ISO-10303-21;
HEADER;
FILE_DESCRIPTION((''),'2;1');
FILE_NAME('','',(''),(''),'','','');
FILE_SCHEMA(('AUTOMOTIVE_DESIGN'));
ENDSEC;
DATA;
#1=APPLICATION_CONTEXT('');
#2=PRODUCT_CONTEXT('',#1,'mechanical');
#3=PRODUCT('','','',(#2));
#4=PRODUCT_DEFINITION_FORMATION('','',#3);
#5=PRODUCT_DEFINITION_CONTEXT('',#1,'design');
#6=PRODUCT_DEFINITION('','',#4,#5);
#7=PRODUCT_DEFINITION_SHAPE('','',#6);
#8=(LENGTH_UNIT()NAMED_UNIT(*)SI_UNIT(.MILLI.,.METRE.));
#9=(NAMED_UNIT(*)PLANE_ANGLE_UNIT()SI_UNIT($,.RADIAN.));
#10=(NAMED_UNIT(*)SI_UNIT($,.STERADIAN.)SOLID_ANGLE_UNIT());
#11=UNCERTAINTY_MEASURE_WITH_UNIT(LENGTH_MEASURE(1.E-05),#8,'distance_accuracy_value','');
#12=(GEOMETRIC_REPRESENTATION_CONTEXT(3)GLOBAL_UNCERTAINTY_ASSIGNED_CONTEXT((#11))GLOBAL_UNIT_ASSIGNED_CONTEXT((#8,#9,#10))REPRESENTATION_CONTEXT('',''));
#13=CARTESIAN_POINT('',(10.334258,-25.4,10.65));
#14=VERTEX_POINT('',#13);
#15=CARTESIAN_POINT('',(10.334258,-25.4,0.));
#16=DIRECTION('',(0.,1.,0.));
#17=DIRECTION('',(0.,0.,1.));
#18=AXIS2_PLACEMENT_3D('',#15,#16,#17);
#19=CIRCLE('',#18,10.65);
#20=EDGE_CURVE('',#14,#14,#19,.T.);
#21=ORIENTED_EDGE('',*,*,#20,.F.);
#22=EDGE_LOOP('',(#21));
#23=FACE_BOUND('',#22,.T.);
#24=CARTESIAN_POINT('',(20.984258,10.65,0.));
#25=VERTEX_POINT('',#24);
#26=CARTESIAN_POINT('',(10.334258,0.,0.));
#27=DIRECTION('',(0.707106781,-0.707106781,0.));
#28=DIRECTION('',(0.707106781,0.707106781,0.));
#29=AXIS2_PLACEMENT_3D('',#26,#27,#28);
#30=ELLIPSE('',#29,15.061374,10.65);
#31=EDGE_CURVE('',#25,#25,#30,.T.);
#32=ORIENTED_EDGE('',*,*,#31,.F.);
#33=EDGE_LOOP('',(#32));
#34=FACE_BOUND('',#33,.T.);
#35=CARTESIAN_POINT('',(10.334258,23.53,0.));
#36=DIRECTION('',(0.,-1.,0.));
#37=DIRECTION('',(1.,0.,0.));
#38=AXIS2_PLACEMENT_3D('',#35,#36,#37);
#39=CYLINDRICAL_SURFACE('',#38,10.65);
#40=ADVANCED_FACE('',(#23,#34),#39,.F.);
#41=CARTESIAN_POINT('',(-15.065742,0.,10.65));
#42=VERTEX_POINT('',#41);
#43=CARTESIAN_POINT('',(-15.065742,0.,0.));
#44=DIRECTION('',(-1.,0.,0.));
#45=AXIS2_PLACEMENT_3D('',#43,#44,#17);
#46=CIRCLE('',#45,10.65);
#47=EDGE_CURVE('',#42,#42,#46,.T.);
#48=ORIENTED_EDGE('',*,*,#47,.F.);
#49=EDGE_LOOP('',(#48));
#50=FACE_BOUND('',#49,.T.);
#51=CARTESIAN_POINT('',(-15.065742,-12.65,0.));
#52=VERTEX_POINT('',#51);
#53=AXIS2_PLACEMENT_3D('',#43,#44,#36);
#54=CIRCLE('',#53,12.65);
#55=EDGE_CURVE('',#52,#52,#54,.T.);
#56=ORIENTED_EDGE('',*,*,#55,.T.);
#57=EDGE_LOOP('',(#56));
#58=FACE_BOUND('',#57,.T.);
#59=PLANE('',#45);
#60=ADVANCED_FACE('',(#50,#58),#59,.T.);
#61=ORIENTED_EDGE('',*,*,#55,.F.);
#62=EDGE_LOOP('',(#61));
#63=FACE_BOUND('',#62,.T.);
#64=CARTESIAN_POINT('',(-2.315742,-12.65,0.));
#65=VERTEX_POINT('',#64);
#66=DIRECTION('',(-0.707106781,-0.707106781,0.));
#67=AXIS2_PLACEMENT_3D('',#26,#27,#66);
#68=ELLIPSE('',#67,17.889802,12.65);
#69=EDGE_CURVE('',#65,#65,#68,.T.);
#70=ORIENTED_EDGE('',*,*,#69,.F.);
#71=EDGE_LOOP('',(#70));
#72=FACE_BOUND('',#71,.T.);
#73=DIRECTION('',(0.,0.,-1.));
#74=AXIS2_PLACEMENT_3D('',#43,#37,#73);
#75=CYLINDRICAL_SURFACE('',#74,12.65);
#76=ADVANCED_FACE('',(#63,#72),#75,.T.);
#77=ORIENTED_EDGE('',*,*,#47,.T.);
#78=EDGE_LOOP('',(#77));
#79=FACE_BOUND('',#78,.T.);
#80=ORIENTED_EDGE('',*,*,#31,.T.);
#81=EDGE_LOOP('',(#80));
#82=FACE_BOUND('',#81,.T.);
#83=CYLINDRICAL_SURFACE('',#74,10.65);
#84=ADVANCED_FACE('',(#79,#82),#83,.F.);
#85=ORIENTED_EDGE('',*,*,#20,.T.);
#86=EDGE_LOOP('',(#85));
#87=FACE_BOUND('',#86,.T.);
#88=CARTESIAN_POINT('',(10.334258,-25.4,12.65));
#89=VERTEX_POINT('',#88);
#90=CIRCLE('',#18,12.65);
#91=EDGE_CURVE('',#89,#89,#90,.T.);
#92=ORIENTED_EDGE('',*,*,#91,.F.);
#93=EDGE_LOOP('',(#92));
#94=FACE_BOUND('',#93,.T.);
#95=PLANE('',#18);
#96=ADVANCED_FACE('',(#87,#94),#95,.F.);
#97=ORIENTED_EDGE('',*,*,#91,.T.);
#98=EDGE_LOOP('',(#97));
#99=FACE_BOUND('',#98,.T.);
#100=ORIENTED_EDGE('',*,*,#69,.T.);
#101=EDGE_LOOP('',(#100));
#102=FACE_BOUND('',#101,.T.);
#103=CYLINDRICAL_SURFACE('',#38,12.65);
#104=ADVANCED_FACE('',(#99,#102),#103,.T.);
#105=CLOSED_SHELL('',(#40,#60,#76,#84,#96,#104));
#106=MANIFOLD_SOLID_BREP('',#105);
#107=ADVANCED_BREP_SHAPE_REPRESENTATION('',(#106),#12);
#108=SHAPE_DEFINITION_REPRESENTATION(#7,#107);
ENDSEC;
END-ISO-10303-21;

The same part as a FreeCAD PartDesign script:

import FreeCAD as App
import Part
import Sketcher
from FreeCAD import Vector

doc = App.newDocument("Part")
body = doc.addObject("PartDesign::Body", "Body")

# Sketch on YZ plane
sketch1 = doc.addObject("Sketcher::SketchObject", "Sketch")
body.addObject(sketch1)
sketch1.AttachmentSupport = (doc.YZ_Plane, [""])
sketch1.MapMode = "FlatFace"
sketch1.AttachmentOffset = App.Placement(Vector(0, 0, -15.065742), App.Rotation())
sketch1.addGeometry([
    Part.Circle(Vector(0, 0, 0), Vector(0, 0, 1), 12.65),
    Part.Circle(Vector(0, 0, 0), Vector(0, 0, 1), 10.65),
], False)
sketch1.addConstraint([
    Sketcher.Constraint("Coincident", 0, 3, -1, 1),
    Sketcher.Constraint("Coincident", 1, 3, -1, 1),
    Sketcher.Constraint("Diameter", 0, 25.3),
    Sketcher.Constraint("Diameter", 1, 21.3),
])

# Sketch on XY plane
sketch2 = doc.addObject("Sketcher::SketchObject", "Sketch001")
body.addObject(sketch2)
sketch2.AttachmentSupport = (doc.XY_Plane, [""])
sketch2.MapMode = "FlatFace"
sketch2.addGeometry([
    Part.LineSegment(Vector(-15.065742, 0, 0), Vector(10.334258, 0, 0)),
    Part.LineSegment(Vector(10.334258, 0, 0), Vector(10.334258, -25.4, 0)),
], False)
sketch2.addConstraint([
    Sketcher.Constraint("Coincident", 0, 2, 1, 1),
    Sketcher.Constraint("Horizontal", 0),
    Sketcher.Constraint("Vertical", 1),
    Sketcher.Constraint("PointOnObject", 0, 1, -1),
    Sketcher.Constraint("Equal", 0, 1),
    Sketcher.Constraint("DistanceX", 0, 1, 0, 2, 25.4),
    Sketcher.Constraint("DistanceX", 0, 1, -1, 1, 15.065742),
])
doc.recompute()

additivepipe = doc.addObject("PartDesign::AdditivePipe", "AdditivePipe")
body.addObject(additivepipe)
additivepipe.Profile = sketch1
additivepipe.Spine = (sketch2, ["Edge1", "Edge2"])
additivepipe.Transition = "Right corner"

doc.recompute()
